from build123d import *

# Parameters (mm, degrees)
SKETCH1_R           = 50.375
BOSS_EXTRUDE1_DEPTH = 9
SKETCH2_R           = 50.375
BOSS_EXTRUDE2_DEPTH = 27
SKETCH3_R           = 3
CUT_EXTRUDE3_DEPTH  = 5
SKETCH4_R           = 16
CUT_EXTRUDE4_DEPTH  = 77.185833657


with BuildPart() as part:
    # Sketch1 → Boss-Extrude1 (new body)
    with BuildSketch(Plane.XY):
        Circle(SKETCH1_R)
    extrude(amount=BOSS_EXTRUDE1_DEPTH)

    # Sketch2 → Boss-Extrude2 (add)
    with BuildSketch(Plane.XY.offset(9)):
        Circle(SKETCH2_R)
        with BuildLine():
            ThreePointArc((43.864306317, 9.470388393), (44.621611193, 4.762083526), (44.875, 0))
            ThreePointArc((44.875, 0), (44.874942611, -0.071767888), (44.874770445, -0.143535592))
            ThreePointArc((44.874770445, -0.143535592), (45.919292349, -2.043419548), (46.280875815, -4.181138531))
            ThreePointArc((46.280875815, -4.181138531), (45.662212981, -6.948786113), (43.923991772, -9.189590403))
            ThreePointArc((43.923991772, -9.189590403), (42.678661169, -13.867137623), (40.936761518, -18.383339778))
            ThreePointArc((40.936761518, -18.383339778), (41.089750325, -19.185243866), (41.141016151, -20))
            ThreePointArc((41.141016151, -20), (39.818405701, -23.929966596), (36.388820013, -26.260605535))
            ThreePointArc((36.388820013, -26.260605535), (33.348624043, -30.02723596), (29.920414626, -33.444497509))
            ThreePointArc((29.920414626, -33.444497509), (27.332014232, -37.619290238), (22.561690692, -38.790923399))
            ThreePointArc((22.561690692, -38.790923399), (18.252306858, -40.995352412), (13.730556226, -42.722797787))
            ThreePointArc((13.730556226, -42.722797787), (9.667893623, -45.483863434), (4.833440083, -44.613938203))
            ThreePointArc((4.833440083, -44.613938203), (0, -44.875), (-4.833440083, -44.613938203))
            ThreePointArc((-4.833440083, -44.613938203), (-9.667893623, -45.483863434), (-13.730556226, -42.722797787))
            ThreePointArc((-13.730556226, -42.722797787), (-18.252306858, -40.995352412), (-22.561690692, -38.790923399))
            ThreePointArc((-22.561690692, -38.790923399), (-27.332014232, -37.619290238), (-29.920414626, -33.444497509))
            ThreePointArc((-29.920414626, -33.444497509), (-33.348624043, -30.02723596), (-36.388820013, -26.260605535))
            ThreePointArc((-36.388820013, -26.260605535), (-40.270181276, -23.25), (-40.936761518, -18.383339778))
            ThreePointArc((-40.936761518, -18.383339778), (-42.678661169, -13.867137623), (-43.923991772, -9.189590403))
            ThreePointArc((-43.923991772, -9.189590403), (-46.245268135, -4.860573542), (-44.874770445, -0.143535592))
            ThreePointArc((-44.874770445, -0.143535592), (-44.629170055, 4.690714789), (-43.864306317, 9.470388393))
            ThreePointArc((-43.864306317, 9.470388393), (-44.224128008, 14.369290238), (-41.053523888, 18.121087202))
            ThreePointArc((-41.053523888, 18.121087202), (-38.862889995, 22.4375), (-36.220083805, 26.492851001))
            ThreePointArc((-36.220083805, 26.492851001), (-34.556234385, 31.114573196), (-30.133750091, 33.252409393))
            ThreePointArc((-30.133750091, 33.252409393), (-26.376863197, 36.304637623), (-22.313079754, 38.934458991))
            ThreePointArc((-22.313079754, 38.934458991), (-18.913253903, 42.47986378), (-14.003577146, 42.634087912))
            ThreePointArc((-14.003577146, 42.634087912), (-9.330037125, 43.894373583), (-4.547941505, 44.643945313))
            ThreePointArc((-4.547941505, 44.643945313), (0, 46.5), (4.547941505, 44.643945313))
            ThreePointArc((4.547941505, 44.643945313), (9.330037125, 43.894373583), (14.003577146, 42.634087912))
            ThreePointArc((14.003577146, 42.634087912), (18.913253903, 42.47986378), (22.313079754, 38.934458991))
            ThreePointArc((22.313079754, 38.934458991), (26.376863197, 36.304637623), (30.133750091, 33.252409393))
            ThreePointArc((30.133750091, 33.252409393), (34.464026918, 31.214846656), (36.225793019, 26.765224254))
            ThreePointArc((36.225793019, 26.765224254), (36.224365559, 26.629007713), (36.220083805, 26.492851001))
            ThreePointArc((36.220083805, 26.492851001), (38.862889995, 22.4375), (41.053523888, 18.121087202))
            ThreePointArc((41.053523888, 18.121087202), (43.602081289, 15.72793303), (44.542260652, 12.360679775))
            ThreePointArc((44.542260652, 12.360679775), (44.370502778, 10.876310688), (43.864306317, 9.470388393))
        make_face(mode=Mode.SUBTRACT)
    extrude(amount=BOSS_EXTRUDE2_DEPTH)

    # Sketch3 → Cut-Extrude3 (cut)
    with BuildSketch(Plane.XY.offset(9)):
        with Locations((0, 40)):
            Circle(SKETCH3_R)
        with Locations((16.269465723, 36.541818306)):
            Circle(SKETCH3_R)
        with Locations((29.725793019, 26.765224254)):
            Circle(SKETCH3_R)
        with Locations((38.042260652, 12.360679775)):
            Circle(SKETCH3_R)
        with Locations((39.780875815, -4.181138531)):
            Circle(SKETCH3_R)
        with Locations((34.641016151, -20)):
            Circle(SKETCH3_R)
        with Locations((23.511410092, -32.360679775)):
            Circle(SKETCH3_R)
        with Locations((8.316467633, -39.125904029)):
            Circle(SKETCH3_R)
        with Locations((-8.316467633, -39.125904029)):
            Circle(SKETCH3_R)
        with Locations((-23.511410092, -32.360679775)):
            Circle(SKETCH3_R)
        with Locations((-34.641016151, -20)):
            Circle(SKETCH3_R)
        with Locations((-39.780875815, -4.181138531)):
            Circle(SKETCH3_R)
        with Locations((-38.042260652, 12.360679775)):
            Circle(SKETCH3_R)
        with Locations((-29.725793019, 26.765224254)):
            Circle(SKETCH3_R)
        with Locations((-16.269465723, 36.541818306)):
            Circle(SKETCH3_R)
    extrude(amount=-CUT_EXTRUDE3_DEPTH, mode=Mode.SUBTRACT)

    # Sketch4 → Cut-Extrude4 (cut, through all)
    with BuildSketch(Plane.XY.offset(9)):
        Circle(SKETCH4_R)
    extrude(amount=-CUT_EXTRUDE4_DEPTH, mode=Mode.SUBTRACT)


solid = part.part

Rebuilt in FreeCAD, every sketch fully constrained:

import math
import FreeCAD as App
import Part
import Sketcher

doc = App.newDocument("Part")
body = doc.addObject("PartDesign::Body", "Body")

sketch1 = body.newObject("Sketcher::SketchObject", "Sketch")
sketch1.AttachmentSupport = (doc.getObject("XY_Plane"), [""])
sketch1.MapMode = "FlatFace"
sketch1.addGeometry(Part.Circle(App.Vector(0, 0, 0), App.Vector(0, 0, 1), 50), False)
sketch1.addConstraint(Sketcher.Constraint("Coincident", 0, 3, -1, 1))
sketch1.addConstraint(Sketcher.Constraint("Diameter", 0, 100.75))
pad1 = body.newObject("PartDesign::Pad", "Pad")
pad1.Profile = sketch1
pad1.Length = 9

sketch2 = body.newObject("Sketcher::SketchObject", "Sketch001")
sketch2.AttachmentSupport = (doc.getObject("XY_Plane"), [""])
sketch2.MapMode = "FlatFace"
sketch2.AttachmentOffset = App.Placement(App.Vector(0, 0, 9), App.Rotation())
sketch2.addGeometry(Part.Circle(App.Vector(0, 0, 0), App.Vector(0, 0, 1), 50.38), False)
sketch2.addGeometry(Part.ArcOfCircle(Part.Circle(App.Vector(38.04, 12.36, 0), App.Vector(0, 0, 1), 6.5), math.radians(-26), math.radians(0)), False)
sketch2.addGeometry(Part.ArcOfCircle(Part.Circle(App.Vector(0, 0, 0), App.Vector(0, 0, 1), 44.88), math.radians(0), math.radians(12.18)), False)
sketch2.addGeometry(Part.ArcOfCircle(Part.Circle(App.Vector(0, 0, 0), App.Vector(0, 0, 1), 44.88), math.radians(-0.18), math.radians(0)), False)
sketch2.addGeometry(Part.ArcOfCircle(Part.Circle(App.Vector(39.78, -4.18, 0), App.Vector(0, 0, 1), 6.5), math.radians(0), math.radians(38)), False)
sketch2.addGeometry(Part.ArcOfCircle(Part.Circle(App.Vector(39.78, -4.18, 0), App.Vector(0, 0, 1), 6.5), math.radians(-50), math.radians(0)), False)
sketch2.addGeometry(Part.ArcOfCircle(Part.Circle(App.Vector(0, 0, 0), App.Vector(0, 0, 1), 44.87), math.radians(-24.18), math.radians(-11.82)), False)
sketch2.addGeometry(Part.ArcOfCircle(Part.Circle(App.Vector(34.64, -20, 0), App.Vector(0, 0, 1), 6.5), math.radians(0), math.radians(14.4)), False)
sketch2.addGeometry(Part.ArcOfCircle(Part.Circle(App.Vector(34.64, -20, 0), App.Vector(0, 0, 1), 6.5), math.radians(-74), math.radians(0)), False)
sketch2.addGeometry(Part.ArcOfCircle(Part.Circle(App.Vector(0, 0, 0), App.Vector(0, 0, 1), 44.88), math.radians(-48.18), math.radians(-35.82)), False)
sketch2.addGeometry(Part.ArcOfCircle(Part.Circle(App.Vector(23.51, -32.36, 0), App.Vector(0, 0, 1), 6.5), math.radians(-98), math.radians(-10)), False)
sketch2.addGeometry(Part.ArcOfCircle(Part.Circle(App.Vector(0, 0, 0), App.Vector(0, 0, 1), 44.88), math.radians(-72.18), math.radians(-59.82)), False)
sketch2.addGeometry(Part.ArcOfCircle(Part.Circle(App.Vector(8.32, -39.13, 0), App.Vector(0, 0, 1), 6.5), math.radians(-122), math.radians(-34)), False)
sketch2.addGeometry(Part.ArcOfCircle(Part.Circle(App.Vector(0, 0, 0), App.Vector(0, 0, 1), 44.88), math.radians(-96.18), math.radians(-83.82)), False)
sketch2.addGeometry(Part.ArcOfCircle(Part.Circle(App.Vector(-8.32, -39.13, 0), App.Vector(0, 0, 1), 6.5), math.radians(-146), math.radians(-58)), False)
sketch2.addGeometry(Part.ArcOfCircle(Part.Circle(App.Vector(0, 0, 0), App.Vector(0, 0, 1), 44.88), math.radians(-120.18), math.radians(-107.82)), False)
sketch2.addGeometry(Part.ArcOfCircle(Part.Circle(App.Vector(-23.51, -32.36, 0), App.Vector(0, 0, 1), 6.5), math.radians(-170), math.radians(-82)), False)
sketch2.addGeometry(Part.ArcOfCircle(Part.Circle(App.Vector(0, 0, 0), App.Vector(0, 0, 1), 44.88), math.radians(-144.18), math.radians(-131.82)), False)
sketch2.addGeometry(Part.ArcOfCircle(Part.Circle(App.Vector(-34.64, -20, 0), App.Vector(0, 0, 1), 6.5), math.radians(166), math.radians(254)), False)
sketch2.addGeometry(Part.ArcOfCircle(Part.Circle(App.Vector(0, 0, 0), App.Vector(0, 0, 1), 44.87), math.radians(-168.18), math.radians(-155.82)), False)
sketch2.addGeometry(Part.ArcOfCircle(Part.Circle(App.Vector(-39.78, -4.18, 0), App.Vector(0, 0, 1), 6.5), math.radians(142), math.radians(230)), False)
sketch2.addGeometry(Part.ArcOfCircle(Part.Circle(App.Vector(0, 0, 0), App.Vector(0, 0, 1), 44.87), math.radians(167.82), math.radians(180.18)), False)
sketch2.addGeometry(Part.ArcOfCircle(Part.Circle(App.Vector(-38.04, 12.36, 0), App.Vector(0, 0, 1), 6.5), math.radians(118), math.radians(206)), False)
sketch2.addGeometry(Part.ArcOfCircle(Part.Circle(App.Vector(0, 0, 0), App.Vector(0, 0, 1), 44.87), math.radians(143.82), math.radians(156.18)), False)
sketch2.addGeometry(Part.ArcOfCircle(Part.Circle(App.Vector(-29.73, 26.77, 0), App.Vector(0, 0, 1), 6.5), math.radians(94), math.radians(182)), False)
sketch2.addGeometry(Part.ArcOfCircle(Part.Circle(App.Vector(0, 0, 0), App.Vector(0, 0, 1), 44.87), math.radians(119.82), math.radians(132.18)), False)
sketch2.addGeometry(Part.ArcOfCircle(Part.Circle(App.Vector(-16.27, 36.54, 0), App.Vector(0, 0, 1), 6.5), math.radians(70), math.radians(158)), False)
sketch2.addGeometry(Part.ArcOfCircle(Part.Circle(App.Vector(0, 0, 0), App.Vector(0, 0, 1), 44.88), math.radians(95.82), math.radians(108.18)), False)
sketch2.addGeometry(Part.ArcOfCircle(Part.Circle(App.Vector(0, 40, 0), App.Vector(0, 0, 1), 6.5), math.radians(46), math.radians(134)), False)
sketch2.addGeometry(Part.ArcOfCircle(Part.Circle(App.Vector(0, 0, 0), App.Vector(0, 0, 1), 44.88), math.radians(71.82), math.radians(84.18)), False)
sketch2.addGeometry(Part.ArcOfCircle(Part.Circle(App.Vector(16.27, 36.54, 0), App.Vector(0, 0, 1), 6.5), math.radians(22), math.radians(110)), False)
sketch2.addGeometry(Part.ArcOfCircle(Part.Circle(App.Vector(0, 0, 0), App.Vector(0, 0, 1), 44.87), math.radians(47.82), math.radians(60.18)), False)
sketch2.addGeometry(Part.ArcOfCircle(Part.Circle(App.Vector(29.73, 26.77, 0), App.Vector(0, 0, 1), 6.5), math.radians(0), math.radians(86)), False)
sketch2.addGeometry(Part.ArcOfCircle(Part.Circle(App.Vector(29.73, 26.77, 0), App.Vector(0, 0, 1), 6.5), math.radians(-2.4), math.radians(0)), False)
sketch2.addGeometry(Part.ArcOfCircle(Part.Circle(App.Vector(0, 0, 0), App.Vector(0, 0, 1), 44.87), math.radians(23.82), math.radians(36.18)), False)
sketch2.addGeometry(Part.ArcOfCircle(Part.Circle(App.Vector(38.04, 12.36, 0), App.Vector(0, 0, 1), 6.5), math.radians(0), math.radians(62)), False)
sketch2.addConstraint(Sketcher.Constraint("Coincident", 1, 1, 2, 2))
sketch2.addConstraint(Sketcher.Constraint("Tangent", 2, 1, 3, 2))
sketch2.addConstraint(Sketcher.Constraint("Coincident", 3, 1, 4, 2))
sketch2.addConstraint(Sketcher.Constraint("Tangent", 4, 1, 5, 2))
sketch2.addConstraint(Sketcher.Constraint("Coincident", 5, 1, 6, 2))
sketch2.addConstraint(Sketcher.Constraint("Coincident", 6, 1, 7, 2))
sketch2.addConstraint(Sketcher.Constraint("Tangent", 7, 1, 8, 2))
sketch2.addConstraint(Sketcher.Constraint("Coincident", 8, 1, 9, 2))
sketch2.addConstraint(Sketcher.Constraint("Coincident", 9, 1, 10, 2))
sketch2.addConstraint(Sketcher.Constraint("Coincident", 10, 1, 11, 2))
sketch2.addConstraint(Sketcher.Constraint("Coincident", 11, 1, 12, 2))
sketch2.addConstraint(Sketcher.Constraint("Coincident", 12, 1, 13, 2))
sketch2.addConstraint(Sketcher.Constraint("Coincident", 13, 1, 14, 2))
sketch2.addConstraint(Sketcher.Constraint("Coincident", 14, 1, 15, 2))
sketch2.addConstraint(Sketcher.Constraint("Coincident", 15, 1, 16, 2))
sketch2.addConstraint(Sketcher.Constraint("Coincident", 16, 1, 17, 2))
sketch2.addConstraint(Sketcher.Constraint("Coincident", 17, 1, 18, 2))
sketch2.addConstraint(Sketcher.Constraint("Coincident", 18, 1, 19, 2))
sketch2.addConstraint(Sketcher.Constraint("Coincident", 19, 1, 20, 2))
sketch2.addConstraint(Sketcher.Constraint("Coincident", 20, 1, 21, 2))
sketch2.addConstraint(Sketcher.Constraint("Coincident", 21, 1, 22, 2))
sketch2.addConstraint(Sketcher.Constraint("Coincident", 22, 1, 23, 2))
sketch2.addConstraint(Sketcher.Constraint("Coincident", 23, 1, 24, 2))
sketch2.addConstraint(Sketcher.Constraint("Coincident", 24, 1, 25, 2))
sketch2.addConstraint(Sketcher.Constraint("Coincident", 25, 1, 26, 2))
sketch2.addConstraint(Sketcher.Constraint("Coincident", 26, 1, 27, 2))
sketch2.addConstraint(Sketcher.Constraint("Coincident", 27, 1, 28, 2))
sketch2.addConstraint(Sketcher.Constraint("Coincident", 28, 1, 29, 2))
sketch2.addConstraint(Sketcher.Constraint("Coincident", 29, 1, 30, 2))
sketch2.addConstraint(Sketcher.Constraint("Coincident", 30, 1, 31, 2))
sketch2.addConstraint(Sketcher.Constraint("Coincident", 31, 1, 32, 2))
sketch2.addConstraint(Sketcher.Constraint("Tangent", 32, 1, 33, 2))
sketch2.addConstraint(Sketcher.Constraint("Coincident", 33, 1, 34, 2))
sketch2.addConstraint(Sketcher.Constraint("Coincident", 34, 1, 35, 2))
sketch2.addConstraint(Sketcher.Constraint("Tangent", 35, 1, 1, 2))
sketch2.addConstraint(Sketcher.Constraint("Coincident", 0, 3, -1, 1))
sketch2.addConstraint(Sketcher.Constraint("Coincident", 2, 3, -1, 1))
sketch2.addConstraint(Sketcher.Constraint("Coincident", 6, 3, -1, 1))
sketch2.addConstraint(Sketcher.Constraint("Coincident", 9, 3, -1, 1))
sketch2.addConstraint(Sketcher.Constraint("Coincident", 11, 3, -1, 1))
sketch2.addConstraint(Sketcher.Constraint("Coincident", 13, 3, -1, 1))
sketch2.addConstraint(Sketcher.Constraint("Coincident", 15, 3, -1, 1))
sketch2.addConstraint(Sketcher.Constraint("Coincident", 17, 3, -1, 1))
sketch2.addConstraint(Sketcher.Constraint("Coincident", 19, 3, -1, 1))
sketch2.addConstraint(Sketcher.Constraint("Coincident", 21, 3, -1, 1))
sketch2.addConstraint(Sketcher.Constraint("Coincident", 23, 3, -1, 1))
sketch2.addConstraint(Sketcher.Constraint("Coincident", 25, 3, -1, 1))
sketch2.addConstraint(Sketcher.Constraint("Coincident", 27, 3, -1, 1))
sketch2.addConstraint(Sketcher.Constraint("Coincident", 29, 3, -1, 1))
sketch2.addConstraint(Sketcher.Constraint("Coincident", 31, 3, -1, 1))
sketch2.addConstraint(Sketcher.Constraint("Coincident", 34, 3, -1, 1))
sketch2.addConstraint(Sketcher.Constraint("Equal", 1, 4))
sketch2.addConstraint(Sketcher.Constraint("Equal", 4, 5))
sketch2.addConstraint(Sketcher.Constraint("Equal", 2, 6))
sketch2.addConstraint(Sketcher.Constraint("Equal", 5, 7))
sketch2.addConstraint(Sketcher.Constraint("Equal", 7, 8))
sketch2.addConstraint(Sketcher.Constraint("Equal", 6, 9))
sketch2.addConstraint(Sketcher.Constraint("Equal", 8, 10))
sketch2.addConstraint(Sketcher.Constraint("Equal", 9, 11))
sketch2.addConstraint(Sketcher.Constraint("Equal", 10, 12))
sketch2.addConstraint(Sketcher.Constraint("Equal", 11, 13))
sketch2.addConstraint(Sketcher.Constraint("Equal", 12, 14))
sketch2.addConstraint(Sketcher.Constraint("Equal", 13, 15))
sketch2.addConstraint(Sketcher.Constraint("Equal", 14, 16))
sketch2.addConstraint(Sketcher.Constraint("Equal", 15, 17))
sketch2.addConstraint(Sketcher.Constraint("Equal", 16, 18))
sketch2.addConstraint(Sketcher.Constraint("Equal", 17, 19))
sketch2.addConstraint(Sketcher.Constraint("Equal", 18, 20))
sketch2.addConstraint(Sketcher.Constraint("Equal", 19, 21))
sketch2.addConstraint(Sketcher.Constraint("Equal", 20, 22))
sketch2.addConstraint(Sketcher.Constraint("Equal", 21, 23))
sketch2.addConstraint(Sketcher.Constraint("Equal", 22, 24))
sketch2.addConstraint(Sketcher.Constraint("Equal", 23, 25))
sketch2.addConstraint(Sketcher.Constraint("Equal", 24, 26))
sketch2.addConstraint(Sketcher.Constraint("Equal", 25, 27))
sketch2.addConstraint(Sketcher.Constraint("Equal", 26, 28))
sketch2.addConstraint(Sketcher.Constraint("Equal", 27, 29))
sketch2.addConstraint(Sketcher.Constraint("Equal", 28, 30))
sketch2.addConstraint(Sketcher.Constraint("Equal", 29, 31))
sketch2.addConstraint(Sketcher.Constraint("Equal", 30, 32))
sketch2.addConstraint(Sketcher.Constraint("Equal", 32, 33))
sketch2.addConstraint(Sketcher.Constraint("Equal", 31, 34))
sketch2.addConstraint(Sketcher.Constraint("Equal", 33, 35))
sketch2.addConstraint(Sketcher.Constraint("Symmetric", 12, 3, 14, 3, -2))
sketch2.addConstraint(Sketcher.Constraint("Symmetric", 10, 3, 16, 3, -2))
sketch2.addConstraint(Sketcher.Constraint("Symmetric", 7, 3, 18, 3, -2))
sketch2.addConstraint(Sketcher.Constraint("Symmetric", 4, 3, 20, 3, -2))
sketch2.addConstraint(Sketcher.Constraint("Symmetric", 1, 3, 22, 3, -2))
sketch2.addConstraint(Sketcher.Constraint("Symmetric", 26, 3, 30, 3, -2))
sketch2.addConstraint(Sketcher.Constraint("Symmetric", 24, 3, 32, 3, -2))
sketch2.addConstraint(Sketcher.Constraint("PointOnObject", 28, 3, -2))
sketch2.addConstraint(Sketcher.Constraint("PointOnObject", 2, 1, -1))
sketch2.addConstraint(Sketcher.Constraint("Horizontal", 20, 3, 4, 1))
sketch2.addConstraint(Sketcher.Constraint("Horizontal", 18, 3, 7, 1))
sketch2.addConstraint(Sketcher.Constraint("Horizontal", 33, 3, 32, 1))
sketch2.addConstraint(Sketcher.Constraint("Horizontal", 22, 3, 35, 1))
sketch2.addConstraint(Sketcher.Constraint("Radius", 1, 6.5))
sketch2.addConstraint(Sketcher.Constraint("Diameter", 0, 100.75))
sketch2.addConstraint(Sketcher.Constraint("DistanceY", 7, 3, -1, 1, 20.0))
sketch2.addConstraint(Sketcher.Constraint("DistanceY", -1, 1, 28, 3, 40.0))
sketch2.addConstraint(Sketcher.Constraint("Radius", 2, 44.875))
sketch2.addConstraint(Sketcher.Constraint("Radius", 3, 44.875074))
sketch2.addConstraint(Sketcher.Constraint("DistanceX", -1, 1, 1, 3, 38.042261))
sketch2.addConstraint(Sketcher.Constraint("DistanceY", -1, 1, 1, 3, 12.36068))
sketch2.addConstraint(Sketcher.Constraint("DistanceY", 4, 3, -1, 1, 4.181139))
sketch2.addConstraint(Sketcher.Constraint("DistanceX", -1, 1, 10, 3, 23.51141))
sketch2.addConstraint(Sketcher.Constraint("DistanceY", 10, 3, -1, 1, 32.36068))
sketch2.addConstraint(Sketcher.Constraint("DistanceY", -1, 1, 26, 3, 36.541818))
sketch2.addConstraint(Sketcher.Constraint("DistanceX", -1, 1, 5, 1, 43.923992))
sketch2.addConstraint(Sketcher.Constraint("DistanceX", -1, 1, 6, 1, 40.936762))
sketch2.addConstraint(Sketcher.Constraint("DistanceX", -1, 1, 12, 1, 4.83344))
sketch2.addConstraint(Sketcher.Constraint("DistanceY", -1, 1, 23, 1, 26.492851))
sketch2.addConstraint(Sketcher.Constraint("DistanceX", 24, 1, -1, 1, 30.13375))
sketch2.addConstraint(Sketcher.Constraint("DistanceX", 25, 1, -1, 1, 22.31308))
sketch2.addConstraint(Sketcher.Constraint("DistanceX", -1, 1, 12, 3, 8.316468))
pad2 = body.newObject("PartDesign::Pad", "Pad001")
pad2.Profile = sketch2
pad2.Length = 27

sketch3 = body.newObject("Sketcher::SketchObject", "Sketch002")
sketch3.AttachmentSupport = (doc.getObject("XY_Plane"), [""])
sketch3.MapMode = "FlatFace"
sketch3.AttachmentOffset = App.Placement(App.Vector(0, 0, 9), App.Rotation())
sketch3.addGeometry(Part.Circle(App.Vector(0, 40, 0), App.Vector(0, 0, 1), 3), False)
sketch3.addGeometry(Part.Circle(App.Vector(16.3, 36.5, 0), App.Vector(0, 0, 1), 3), False)
sketch3.addGeometry(Part.Circle(App.Vector(29.7, 26.8, 0), App.Vector(0, 0, 1), 3), False)
sketch3.addGeometry(Part.Circle(App.Vector(38, 12.4, 0), App.Vector(0, 0, 1), 3), False)
sketch3.addGeometry(Part.Circle(App.Vector(39.8, -4.2, 0), App.Vector(0, 0, 1), 3), False)
sketch3.addGeometry(Part.Circle(App.Vector(34.6, -20, 0), App.Vector(0, 0, 1), 3), False)
sketch3.addGeometry(Part.Circle(App.Vector(23.5, -32.4, 0), App.Vector(0, 0, 1), 3), False)
sketch3.addGeometry(Part.Circle(App.Vector(8.3, -39.1, 0), App.Vector(0, 0, 1), 3), False)
sketch3.addGeometry(Part.Circle(App.Vector(-8.3, -39.1, 0), App.Vector(0, 0, 1), 3), False)
sketch3.addGeometry(Part.Circle(App.Vector(-23.5, -32.4, 0), App.Vector(0, 0, 1), 3), False)
sketch3.addGeometry(Part.Circle(App.Vector(-34.6, -20, 0), App.Vector(0, 0, 1), 3), False)
sketch3.addGeometry(Part.Circle(App.Vector(-39.8, -4.2, 0), App.Vector(0, 0, 1), 3), False)
sketch3.addGeometry(Part.Circle(App.Vector(-38, 12.4, 0), App.Vector(0, 0, 1), 3), False)
sketch3.addGeometry(Part.Circle(App.Vector(-29.7, 26.8, 0), App.Vector(0, 0, 1), 3), False)
sketch3.addGeometry(Part.Circle(App.Vector(-16.3, 36.5, 0), App.Vector(0, 0, 1), 3), False)
sketch3.addConstraint(Sketcher.Constraint("Equal", 0, 1))
sketch3.addConstraint(Sketcher.Constraint("Equal", 1, 2))
sketch3.addConstraint(Sketcher.Constraint("Equal", 2, 3))
sketch3.addConstraint(Sketcher.Constraint("Equal", 3, 4))
sketch3.addConstraint(Sketcher.Constraint("Equal", 4, 5))
sketch3.addConstraint(Sketcher.Constraint("Equal", 5, 6))
sketch3.addConstraint(Sketcher.Constraint("Equal", 6, 7))
sketch3.addConstraint(Sketcher.Constraint("Equal", 7, 8))
sketch3.addConstraint(Sketcher.Constraint("Equal", 8, 9))
sketch3.addConstraint(Sketcher.Constraint("Equal", 9, 10))
sketch3.addConstraint(Sketcher.Constraint("Equal", 10, 11))
sketch3.addConstraint(Sketcher.Constraint("Equal", 11, 12))
sketch3.addConstraint(Sketcher.Constraint("Equal", 12, 13))
sketch3.addConstraint(Sketcher.Constraint("Equal", 13, 14))
sketch3.addConstraint(Sketcher.Constraint("Symmetric", 7, 3, 8, 3, -2))
sketch3.addConstraint(Sketcher.Constraint("Symmetric", 6, 3, 9, 3, -2))
sketch3.addConstraint(Sketcher.Constraint("Symmetric", 5, 3, 10, 3, -2))
sketch3.addConstraint(Sketcher.Constraint("Symmetric", 4, 3, 11, 3, -2))
sketch3.addConstraint(Sketcher.Constraint("Symmetric", 3, 3, 12, 3, -2))
sketch3.addConstraint(Sketcher.Constraint("Symmetric", 2, 3, 13, 3, -2))
sketch3.addConstraint(Sketcher.Constraint("Symmetric", 1, 3, 14, 3, -2))
sketch3.addConstraint(Sketcher.Constraint("PointOnObject", 0, 3, -2))
sketch3.addConstraint(Sketcher.Constraint("Diameter", 0, 6.0))
sketch3.addConstraint(Sketcher.Constraint("DistanceY", -1, 1, 0, 3, 40.0))
sketch3.addConstraint(Sketcher.Constraint("DistanceY", 5, 3, -1, 1, 20.0))
sketch3.addConstraint(Sketcher.Constraint("DistanceY", 6, 3, 1, 3, 68.902498))
sketch3.addConstraint(Sketcher.Constraint("DistanceY", -1, 1, 1, 3, 36.541818))
sketch3.addConstraint(Sketcher.Constraint("DistanceX", -1, 1, 3, 3, 38.042261))
sketch3.addConstraint(Sketcher.Constraint("DistanceY", -1, 1, 3, 3, 12.36068))
sketch3.addConstraint(Sketcher.Constraint("DistanceY", 4, 3, -1, 1, 4.181139))
sketch3.addConstraint(Sketcher.Constraint("DistanceX", -1, 1, 6, 3, 23.51141))
sketch3.addConstraint(Sketcher.Constraint("DistanceX", 1, 3, 4, 3, 23.51141))
sketch3.addConstraint(Sketcher.Constraint("DistanceX", 5, 3, 4, 3, 5.13986))
sketch3.addConstraint(Sketcher.Constraint("DistanceX", 7, 3, 5, 3, 26.324549))
sketch3.addConstraint(Sketcher.Constraint("DistanceY", 7, 3, 2, 3, 65.891128))
sketch3.addConstraint(Sketcher.Constraint("DistanceX", 8, 3, 3, 3, 46.358728))
sketch3.addConstraint(Sketcher.Constraint("DistanceX", 13, 3, 1, 3, 45.995259))
sketch3.addConstraint(Sketcher.Constraint("DistanceY", -1, 1, 2, 3, 26.765224))
pocket1 = body.newObject("PartDesign::Pocket", "Pocket")
pocket1.Profile = sketch3
pocket1.Length = 5

sketch4 = body.newObject("Sketcher::SketchObject", "Sketch003")
sketch4.AttachmentSupport = (doc.getObject("XY_Plane"), [""])
sketch4.MapMode = "FlatFace"
sketch4.AttachmentOffset = App.Placement(App.Vector(0, 0, 9), App.Rotation())
sketch4.addGeometry(Part.Circle(App.Vector(0, 0, 0), App.Vector(0, 0, 1), 16), False)
sketch4.addConstraint(Sketcher.Constraint("Coincident", 0, 3, -1, 1))
sketch4.addConstraint(Sketcher.Constraint("Diameter", 0, 32.0))
pocket2 = body.newObject("PartDesign::Pocket", "Pocket001")
pocket2.Profile = sketch4
pocket2.Type = "ThroughAll"

doc.recompute()
